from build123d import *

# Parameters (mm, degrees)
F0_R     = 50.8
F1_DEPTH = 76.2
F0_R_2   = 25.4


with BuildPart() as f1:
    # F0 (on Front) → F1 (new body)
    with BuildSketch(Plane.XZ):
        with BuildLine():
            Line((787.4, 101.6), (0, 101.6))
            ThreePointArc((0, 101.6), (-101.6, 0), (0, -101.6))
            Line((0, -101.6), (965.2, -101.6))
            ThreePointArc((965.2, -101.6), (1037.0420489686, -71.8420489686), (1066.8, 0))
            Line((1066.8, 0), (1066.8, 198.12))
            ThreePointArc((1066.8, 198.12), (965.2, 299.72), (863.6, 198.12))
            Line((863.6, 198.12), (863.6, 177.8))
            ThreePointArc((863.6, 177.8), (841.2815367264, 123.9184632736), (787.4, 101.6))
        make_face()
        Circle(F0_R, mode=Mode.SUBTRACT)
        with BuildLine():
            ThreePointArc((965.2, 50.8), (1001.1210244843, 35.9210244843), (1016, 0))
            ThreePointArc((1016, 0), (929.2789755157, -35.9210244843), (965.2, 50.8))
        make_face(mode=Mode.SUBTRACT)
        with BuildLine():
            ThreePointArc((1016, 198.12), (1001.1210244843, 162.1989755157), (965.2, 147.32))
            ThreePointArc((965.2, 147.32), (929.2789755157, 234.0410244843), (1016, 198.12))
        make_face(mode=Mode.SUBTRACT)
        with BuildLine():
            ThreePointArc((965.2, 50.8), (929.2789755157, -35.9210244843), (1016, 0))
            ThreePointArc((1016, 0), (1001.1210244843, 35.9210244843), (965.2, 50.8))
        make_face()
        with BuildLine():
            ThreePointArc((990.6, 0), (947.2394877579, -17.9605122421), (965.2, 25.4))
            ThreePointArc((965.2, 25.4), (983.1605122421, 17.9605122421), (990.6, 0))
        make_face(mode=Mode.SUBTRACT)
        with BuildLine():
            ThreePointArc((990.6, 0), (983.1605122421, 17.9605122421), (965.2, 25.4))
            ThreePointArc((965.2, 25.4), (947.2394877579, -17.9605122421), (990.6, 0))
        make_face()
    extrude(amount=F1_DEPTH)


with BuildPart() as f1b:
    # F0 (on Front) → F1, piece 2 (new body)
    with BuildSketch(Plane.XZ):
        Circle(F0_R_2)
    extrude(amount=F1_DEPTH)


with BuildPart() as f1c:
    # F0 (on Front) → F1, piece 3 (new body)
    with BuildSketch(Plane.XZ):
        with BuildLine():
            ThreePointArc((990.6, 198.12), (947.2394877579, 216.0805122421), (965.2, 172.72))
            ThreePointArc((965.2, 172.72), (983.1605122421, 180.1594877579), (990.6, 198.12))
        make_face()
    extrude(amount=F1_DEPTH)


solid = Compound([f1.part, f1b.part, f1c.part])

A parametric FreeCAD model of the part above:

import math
import FreeCAD as App
import Part
import Sketcher

V = App.Vector
Q = App.Units.Quantity

doc = App.newDocument("Part")
body = doc.addObject("PartDesign::Body", "Body")

# Sketch on XZ plane
sketch1 = body.newObject("Sketcher::SketchObject", "Sketch")
sketch1.AttachmentSupport = (doc.getObject("XZ_Plane"), [""])
sketch1.MapMode = "FlatFace"
sketch1.addGeometry(Part.LineSegment(V(787, 102, 0), V(0, 102, 0)), False)
sketch1.addGeometry(Part.ArcOfCircle(Part.Circle(V(0, 0, 0), V(0, 0, 1), 102), math.radians(90), math.radians(270)), False)
sketch1.addGeometry(Part.LineSegment(V(0, -102, 0), V(965, -102, 0)), False)
sketch1.addGeometry(Part.ArcOfCircle(Part.Circle(V(965, 0, 0), V(0, 0, 1), 102), math.radians(-90), math.radians(0)), False)
sketch1.addGeometry(Part.LineSegment(V(1067, 0, 0), V(1067, 198, 0)), False)
sketch1.addGeometry(Part.ArcOfCircle(Part.Circle(V(965, 198, 0), V(0, 0, 1), 102), math.radians(0), math.radians(180)), False)
sketch1.addGeometry(Part.LineSegment(V(864, 198, 0), V(864, 178, 0)), False)
sketch1.addGeometry(Part.ArcOfCircle(Part.Circle(V(787, 178, 0), V(0, 0, 1), 76), math.radians(-90), math.radians(0)), False)
sketch1.addGeometry(Part.Circle(V(0, 0, 0), V(0, 0, 1), 51), False)
sketch1.addGeometry(Part.ArcOfCircle(Part.Circle(V(965, 198, 0), V(0, 0, 1), 51), math.radians(0), math.radians(270)), False)
sketch1.addGeometry(Part.ArcOfCircle(Part.Circle(V(965, 198, 0), V(0, 0, 1), 51), math.radians(-90), math.radians(0)), False)
sketch1.addConstraint(Sketcher.Constraint("Tangent", 0, 2, 1, 1))
sketch1.addConstraint(Sketcher.Constraint("Tangent", 1, 2, 2, 1))
sketch1.addConstraint(Sketcher.Constraint("Tangent", 2, 2, 3, 1))
sketch1.addConstraint(Sketcher.Constraint("Tangent", 3, 2, 4, 1))
sketch1.addConstraint(Sketcher.Constraint("Tangent", 4, 2, 5, 1))
sketch1.addConstraint(Sketcher.Constraint("Tangent", 5, 2, 6, 1))
sketch1.addConstraint(Sketcher.Constraint("Tangent", 6, 2, 7, 2))
sketch1.addConstraint(Sketcher.Constraint("Tangent", 7, 1, 0, 1))
sketch1.addConstraint(Sketcher.Constraint("Tangent", 9, 1, 10, 2))
sketch1.addConstraint(Sketcher.Constraint("Coincident", 10, 1, 9, 2))
sketch1.addConstraint(Sketcher.Constraint("Horizontal", 0))
sketch1.addConstraint(Sketcher.Constraint("Horizontal", 2))
sketch1.addConstraint(Sketcher.Constraint("Vertical", 4))
sketch1.addConstraint(Sketcher.Constraint("Vertical", 6))
sketch1.addConstraint(Sketcher.Constraint("Coincident", 1, 3, -1, 1))
sketch1.addConstraint(Sketcher.Constraint("Coincident", 8, 3, -1, 1))
sketch1.addConstraint(Sketcher.Constraint("Coincident", 9, 3, 5, 3))
sketch1.addConstraint(Sketcher.Constraint("Equal", 1, 3))
sketch1.addConstraint(Sketcher.Constraint("Equal", 3, 5))
sketch1.addConstraint(Sketcher.Constraint("Equal", 8, 9))
sketch1.addConstraint(Sketcher.Constraint("Horizontal", 5, 2, 9, 1))
sketch1.addConstraint(Sketcher.Constraint("Vertical", 2, 2, 10, 1))
sketch1.addConstraint(Sketcher.Constraint("Diameter", 8, Q("4 in")))
sketch1.addConstraint(Sketcher.Constraint("Radius", 1, Q("4 in")))
sketch1.addConstraint(Sketcher.Constraint("Radius", 7, Q("3 in")))
sketch1.addConstraint(Sketcher.Constraint("DistanceX", 0, 2, 0, 1, Q("31 in")))
sketch1.addConstraint(Sketcher.Constraint("DistanceY", 4, 1, 4, 2, Q("7.8 in")))
pad1 = body.newObject("PartDesign::Pad", "Pad")
pad1.Profile = sketch1
pad1.Length = Q("3 in")
body2 = doc.addObject("PartDesign::Body", "Body001")

# Sketch on XZ plane
sketch2 = body2.newObject("Sketcher::SketchObject", "Sketch001")
sketch2.AttachmentSupport = (doc.getObject("XZ_Plane001"), [""])
sketch2.MapMode = "FlatFace"
sketch2.addGeometry(Part.Circle(V(0, 0, 0), V(0, 0, 1), 25), False)
sketch2.addConstraint(Sketcher.Constraint("Coincident", 0, 3, -1, 1))
sketch2.addConstraint(Sketcher.Constraint("Diameter", 0, Q("2 in")))
pad2 = body2.newObject("PartDesign::Pad", "Pad001")
pad2.Profile = sketch2
pad2.Length = Q("3 in")
body3 = doc.addObject("PartDesign::Body", "Body002")

# Sketch on XZ plane
sketch3 = body3.newObject("Sketcher::SketchObject", "Sketch002")
sketch3.AttachmentSupport = (doc.getObject("XZ_Plane002"), [""])
sketch3.MapMode = "FlatFace"
sketch3.addGeometry(Part.ArcOfCircle(Part.Circle(V(965, 198, 0), V(0, 0, 1), 25), math.radians(0), math.radians(270)), False)
sketch3.addGeometry(Part.ArcOfCircle(Part.Circle(V(965, 198, 0), V(0, 0, 1), 25), math.radians(-90), math.radians(0)), False)
sketch3.addConstraint(Sketcher.Constraint("Tangent", 0, 1, 1, 2))
sketch3.addConstraint(Sketcher.Constraint("Coincident", 1, 1, 0, 2))
sketch3.addConstraint(Sketcher.Constraint("Horizontal", 1, 3, 0, 1))
sketch3.addConstraint(Sketcher.Constraint("Vertical", 0, 3, 1, 1))
sketch3.addConstraint(Sketcher.Constraint("Radius", 0, Q("1 in")))
sketch3.addConstraint(Sketcher.Constraint("DistanceX", -1, 1, 0, 3, Q("38 in")))
sketch3.addConstraint(Sketcher.Constraint("DistanceY", -1, 1, 0, 3, Q("7.8 in")))
pad3 = body3.newObject("PartDesign::Pad", "Pad002")
pad3.Profile = sketch3
pad3.Length = Q("3 in")

doc.recompute()
